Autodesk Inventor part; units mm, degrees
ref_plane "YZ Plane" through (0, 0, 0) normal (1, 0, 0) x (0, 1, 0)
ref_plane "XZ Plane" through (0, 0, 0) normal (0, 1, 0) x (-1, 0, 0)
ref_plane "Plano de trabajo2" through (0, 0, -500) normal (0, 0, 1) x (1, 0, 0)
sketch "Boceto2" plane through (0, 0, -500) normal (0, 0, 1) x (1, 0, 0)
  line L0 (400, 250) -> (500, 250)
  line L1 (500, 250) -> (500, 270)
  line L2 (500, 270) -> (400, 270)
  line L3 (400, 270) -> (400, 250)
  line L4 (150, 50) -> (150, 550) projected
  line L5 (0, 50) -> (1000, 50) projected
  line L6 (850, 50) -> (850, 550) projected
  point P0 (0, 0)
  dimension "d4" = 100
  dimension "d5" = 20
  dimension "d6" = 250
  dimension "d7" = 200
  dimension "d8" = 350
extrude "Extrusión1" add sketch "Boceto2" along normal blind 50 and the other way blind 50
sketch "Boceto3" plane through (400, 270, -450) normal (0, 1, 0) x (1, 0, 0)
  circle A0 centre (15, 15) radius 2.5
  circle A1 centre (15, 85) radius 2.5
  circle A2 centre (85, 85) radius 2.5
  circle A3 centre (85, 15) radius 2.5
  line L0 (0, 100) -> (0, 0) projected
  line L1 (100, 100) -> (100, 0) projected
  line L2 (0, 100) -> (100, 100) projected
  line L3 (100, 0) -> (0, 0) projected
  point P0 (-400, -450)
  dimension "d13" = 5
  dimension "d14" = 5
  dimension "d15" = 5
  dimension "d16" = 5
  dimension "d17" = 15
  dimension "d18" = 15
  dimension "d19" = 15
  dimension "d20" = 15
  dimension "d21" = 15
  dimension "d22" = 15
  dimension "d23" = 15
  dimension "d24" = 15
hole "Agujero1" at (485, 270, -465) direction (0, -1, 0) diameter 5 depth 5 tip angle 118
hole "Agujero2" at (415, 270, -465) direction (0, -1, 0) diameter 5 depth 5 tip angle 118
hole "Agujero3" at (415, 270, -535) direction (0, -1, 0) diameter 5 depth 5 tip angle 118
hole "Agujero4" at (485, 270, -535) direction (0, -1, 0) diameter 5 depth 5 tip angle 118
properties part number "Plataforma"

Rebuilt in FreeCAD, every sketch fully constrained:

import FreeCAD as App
import Part
import Sketcher
Q = App.Units.Quantity

doc = App.newDocument("Part")
params = doc.addObject("Spreadsheet::Sheet", "Params")
for row, (alias, value) in enumerate([
    ("sketch1_width", "100 mm"),
    ("sketch1_height", "20 mm"),
    ("pad1_length", "50 mm"),
    ("pad1_length2", "50 mm"),
    ("sketch2_diameter", "5 mm"),
    ("hole_diameter", "5 mm"),
    ("hole_depth", "5 mm"),
    ("sketch3_diameter", "5 mm"),
    ("hole2_diameter", "5 mm"),
    ("hole2_depth", "5 mm"),
    ("sketch4_diameter", "5 mm"),
    ("hole3_diameter", "5 mm"),
    ("hole3_depth", "5 mm"),
    ("sketch5_diameter", "5 mm"),
    ("hole4_diameter", "5 mm"),
    ("hole4_depth", "5 mm"),
], start=1):
    params.set(f"A{row}", alias)
    params.set(f"B{row}", "=" + value)
    params.setAlias(f"B{row}", alias)

body = doc.addObject("PartDesign::Body", "Body")

# Sketch on XY plane
sketch1 = body.newObject("Sketcher::SketchObject", "Sketch")
sketch1.AttachmentSupport = (doc.getObject("XY_Plane"), [""])
sketch1.MapMode = "FlatFace"
sketch1.AttachmentOffset = App.Placement(App.Vector(0, 0, -500), App.Rotation())
sketch1.addGeometry([
    Part.LineSegment(App.Vector(400, 270, 0), App.Vector(400, 250, 0)),
    Part.LineSegment(App.Vector(400, 250, 0), App.Vector(500, 250, 0)),
    Part.LineSegment(App.Vector(500, 250, 0), App.Vector(500, 270, 0)),
    Part.LineSegment(App.Vector(500, 270, 0), App.Vector(400, 270, 0)),
], False)
sketch1.addConstraint([
    Sketcher.Constraint("Coincident", 0, 2, 1, 1),
    Sketcher.Constraint("Coincident", 1, 2, 2, 1),
    Sketcher.Constraint("Coincident", 2, 2, 3, 1),
    Sketcher.Constraint("Coincident", 3, 2, 0, 1),
    Sketcher.Constraint("Vertical", 0),
    Sketcher.Constraint("Horizontal", 1),
    Sketcher.Constraint("Vertical", 2),
    Sketcher.Constraint("Horizontal", 3),
    Sketcher.Constraint("DistanceX", 1, 1, 1, 2, Q("100 mm")),
    Sketcher.Constraint("DistanceY", 0, 2, 0, 1, Q("20 mm")),
    Sketcher.Constraint("DistanceY", -1, 1, 0, 2, Q("250 mm")),
    Sketcher.Constraint("DistanceX", -1, 1, 0, 2, Q("400 mm")),
])
sketch1.setExpression("Constraints[8]", "Params.sketch1_width")
sketch1.setExpression("Constraints[9]", "Params.sketch1_height")
pad1 = body.newObject("PartDesign::Pad", "Pad")
pad1.Profile = sketch1
pad1.Type = "TwoLengths"
pad1.setExpression("Length", "Params.pad1_length")
pad1.setExpression("Length2", "Params.pad1_length2")

# Sketch on XZ plane
sketch2 = body.newObject("Sketcher::SketchObject", "Sketch001")
sketch2.AttachmentSupport = (doc.getObject("XZ_Plane"), [""])
sketch2.MapMode = "FlatFace"
sketch2.AttachmentOffset = App.Placement(App.Vector(0, 0, -270), App.Rotation())
sketch2.addGeometry(Part.Circle(App.Vector(485, -465, 0), App.Vector(0, 0, 1), 2.5), False)
sketch2.addConstraint([
    Sketcher.Constraint("Diameter", 0, Q("5 mm")),
    Sketcher.Constraint("DistanceX", -1, 1, 0, 3, Q("485 mm")),
    Sketcher.Constraint("DistanceY", 0, 3, -1, 1, Q("465 mm")),
])
sketch2.setExpression("Constraints[0]", "Params.sketch2_diameter")
doc.recompute()
hole = body.newObject("PartDesign::Hole", "Hole")
hole.Profile = sketch2
hole.ThreadType = "None"
hole.setExpression("Diameter", "Params.hole_diameter")
hole.DepthType = "Dimension"
hole.setExpression("Depth", "Params.hole_depth")
hole.DrillPoint = "Angled"
hole.DrillPointAngle = 118
hole.Reversed = True

# Sketch on XZ plane
sketch3 = body.newObject("Sketcher::SketchObject", "Sketch002")
sketch3.AttachmentSupport = (doc.getObject("XZ_Plane"), [""])
sketch3.MapMode = "FlatFace"
sketch3.AttachmentOffset = App.Placement(App.Vector(0, 0, -270), App.Rotation())
sketch3.addGeometry(Part.Circle(App.Vector(415, -465, 0), App.Vector(0, 0, 1), 2.5), False)
sketch3.addConstraint([
    Sketcher.Constraint("Diameter", 0, Q("5 mm")),
    Sketcher.Constraint("DistanceX", -1, 1, 0, 3, Q("415 mm")),
    Sketcher.Constraint("DistanceY", 0, 3, -1, 1, Q("465 mm")),
])
sketch3.setExpression("Constraints[0]", "Params.sketch3_diameter")
doc.recompute()
hole2 = body.newObject("PartDesign::Hole", "Hole001")
hole2.Profile = sketch3
hole2.ThreadType = "None"
hole2.setExpression("Diameter", "Params.hole2_diameter")
hole2.DepthType = "Dimension"
hole2.setExpression("Depth", "Params.hole2_depth")
hole2.DrillPoint = "Angled"
hole2.DrillPointAngle = 118
hole2.Reversed = True

# Sketch on XZ plane
sketch4 = body.newObject("Sketcher::SketchObject", "Sketch003")
sketch4.AttachmentSupport = (doc.getObject("XZ_Plane"), [""])
sketch4.MapMode = "FlatFace"
sketch4.AttachmentOffset = App.Placement(App.Vector(0, 0, -270), App.Rotation())
sketch4.addGeometry(Part.Circle(App.Vector(415, -535, 0), App.Vector(0, 0, 1), 2.5), False)
sketch4.addConstraint([
    Sketcher.Constraint("Diameter", 0, Q("5 mm")),
    Sketcher.Constraint("DistanceX", -1, 1, 0, 3, Q("415 mm")),
    Sketcher.Constraint("DistanceY", 0, 3, -1, 1, Q("535 mm")),
])
sketch4.setExpression("Constraints[0]", "Params.sketch4_diameter")
doc.recompute()
hole3 = body.newObject("PartDesign::Hole", "Hole002")
hole3.Profile = sketch4
hole3.ThreadType = "None"
hole3.setExpression("Diameter", "Params.hole3_diameter")
hole3.DepthType = "Dimension"
hole3.setExpression("Depth", "Params.hole3_depth")
hole3.DrillPoint = "Angled"
hole3.DrillPointAngle = 118
hole3.Reversed = True

# Sketch on XZ plane
sketch5 = body.newObject("Sketcher::SketchObject", "Sketch004")
sketch5.AttachmentSupport = (doc.getObject("XZ_Plane"), [""])
sketch5.MapMode = "FlatFace"
sketch5.AttachmentOffset = App.Placement(App.Vector(0, 0, -270), App.Rotation())
sketch5.addGeometry(Part.Circle(App.Vector(485, -535, 0), App.Vector(0, 0, 1), 2.5), False)
sketch5.addConstraint([
    Sketcher.Constraint("Diameter", 0, Q("5 mm")),
    Sketcher.Constraint("DistanceX", -1, 1, 0, 3, Q("485 mm")),
    Sketcher.Constraint("DistanceY", 0, 3, -1, 1, Q("535 mm")),
])
sketch5.setExpression("Constraints[0]", "Params.sketch5_diameter")
doc.recompute()
hole4 = body.newObject("PartDesign::Hole", "Hole003")
hole4.Profile = sketch5
hole4.ThreadType = "None"
hole4.setExpression("Diameter", "Params.hole4_diameter")
hole4.DepthType = "Dimension"
hole4.setExpression("Depth", "Params.hole4_depth")
hole4.DrillPoint = "Angled"
hole4.DrillPointAngle = 118
hole4.Reversed = True

doc.recompute()
